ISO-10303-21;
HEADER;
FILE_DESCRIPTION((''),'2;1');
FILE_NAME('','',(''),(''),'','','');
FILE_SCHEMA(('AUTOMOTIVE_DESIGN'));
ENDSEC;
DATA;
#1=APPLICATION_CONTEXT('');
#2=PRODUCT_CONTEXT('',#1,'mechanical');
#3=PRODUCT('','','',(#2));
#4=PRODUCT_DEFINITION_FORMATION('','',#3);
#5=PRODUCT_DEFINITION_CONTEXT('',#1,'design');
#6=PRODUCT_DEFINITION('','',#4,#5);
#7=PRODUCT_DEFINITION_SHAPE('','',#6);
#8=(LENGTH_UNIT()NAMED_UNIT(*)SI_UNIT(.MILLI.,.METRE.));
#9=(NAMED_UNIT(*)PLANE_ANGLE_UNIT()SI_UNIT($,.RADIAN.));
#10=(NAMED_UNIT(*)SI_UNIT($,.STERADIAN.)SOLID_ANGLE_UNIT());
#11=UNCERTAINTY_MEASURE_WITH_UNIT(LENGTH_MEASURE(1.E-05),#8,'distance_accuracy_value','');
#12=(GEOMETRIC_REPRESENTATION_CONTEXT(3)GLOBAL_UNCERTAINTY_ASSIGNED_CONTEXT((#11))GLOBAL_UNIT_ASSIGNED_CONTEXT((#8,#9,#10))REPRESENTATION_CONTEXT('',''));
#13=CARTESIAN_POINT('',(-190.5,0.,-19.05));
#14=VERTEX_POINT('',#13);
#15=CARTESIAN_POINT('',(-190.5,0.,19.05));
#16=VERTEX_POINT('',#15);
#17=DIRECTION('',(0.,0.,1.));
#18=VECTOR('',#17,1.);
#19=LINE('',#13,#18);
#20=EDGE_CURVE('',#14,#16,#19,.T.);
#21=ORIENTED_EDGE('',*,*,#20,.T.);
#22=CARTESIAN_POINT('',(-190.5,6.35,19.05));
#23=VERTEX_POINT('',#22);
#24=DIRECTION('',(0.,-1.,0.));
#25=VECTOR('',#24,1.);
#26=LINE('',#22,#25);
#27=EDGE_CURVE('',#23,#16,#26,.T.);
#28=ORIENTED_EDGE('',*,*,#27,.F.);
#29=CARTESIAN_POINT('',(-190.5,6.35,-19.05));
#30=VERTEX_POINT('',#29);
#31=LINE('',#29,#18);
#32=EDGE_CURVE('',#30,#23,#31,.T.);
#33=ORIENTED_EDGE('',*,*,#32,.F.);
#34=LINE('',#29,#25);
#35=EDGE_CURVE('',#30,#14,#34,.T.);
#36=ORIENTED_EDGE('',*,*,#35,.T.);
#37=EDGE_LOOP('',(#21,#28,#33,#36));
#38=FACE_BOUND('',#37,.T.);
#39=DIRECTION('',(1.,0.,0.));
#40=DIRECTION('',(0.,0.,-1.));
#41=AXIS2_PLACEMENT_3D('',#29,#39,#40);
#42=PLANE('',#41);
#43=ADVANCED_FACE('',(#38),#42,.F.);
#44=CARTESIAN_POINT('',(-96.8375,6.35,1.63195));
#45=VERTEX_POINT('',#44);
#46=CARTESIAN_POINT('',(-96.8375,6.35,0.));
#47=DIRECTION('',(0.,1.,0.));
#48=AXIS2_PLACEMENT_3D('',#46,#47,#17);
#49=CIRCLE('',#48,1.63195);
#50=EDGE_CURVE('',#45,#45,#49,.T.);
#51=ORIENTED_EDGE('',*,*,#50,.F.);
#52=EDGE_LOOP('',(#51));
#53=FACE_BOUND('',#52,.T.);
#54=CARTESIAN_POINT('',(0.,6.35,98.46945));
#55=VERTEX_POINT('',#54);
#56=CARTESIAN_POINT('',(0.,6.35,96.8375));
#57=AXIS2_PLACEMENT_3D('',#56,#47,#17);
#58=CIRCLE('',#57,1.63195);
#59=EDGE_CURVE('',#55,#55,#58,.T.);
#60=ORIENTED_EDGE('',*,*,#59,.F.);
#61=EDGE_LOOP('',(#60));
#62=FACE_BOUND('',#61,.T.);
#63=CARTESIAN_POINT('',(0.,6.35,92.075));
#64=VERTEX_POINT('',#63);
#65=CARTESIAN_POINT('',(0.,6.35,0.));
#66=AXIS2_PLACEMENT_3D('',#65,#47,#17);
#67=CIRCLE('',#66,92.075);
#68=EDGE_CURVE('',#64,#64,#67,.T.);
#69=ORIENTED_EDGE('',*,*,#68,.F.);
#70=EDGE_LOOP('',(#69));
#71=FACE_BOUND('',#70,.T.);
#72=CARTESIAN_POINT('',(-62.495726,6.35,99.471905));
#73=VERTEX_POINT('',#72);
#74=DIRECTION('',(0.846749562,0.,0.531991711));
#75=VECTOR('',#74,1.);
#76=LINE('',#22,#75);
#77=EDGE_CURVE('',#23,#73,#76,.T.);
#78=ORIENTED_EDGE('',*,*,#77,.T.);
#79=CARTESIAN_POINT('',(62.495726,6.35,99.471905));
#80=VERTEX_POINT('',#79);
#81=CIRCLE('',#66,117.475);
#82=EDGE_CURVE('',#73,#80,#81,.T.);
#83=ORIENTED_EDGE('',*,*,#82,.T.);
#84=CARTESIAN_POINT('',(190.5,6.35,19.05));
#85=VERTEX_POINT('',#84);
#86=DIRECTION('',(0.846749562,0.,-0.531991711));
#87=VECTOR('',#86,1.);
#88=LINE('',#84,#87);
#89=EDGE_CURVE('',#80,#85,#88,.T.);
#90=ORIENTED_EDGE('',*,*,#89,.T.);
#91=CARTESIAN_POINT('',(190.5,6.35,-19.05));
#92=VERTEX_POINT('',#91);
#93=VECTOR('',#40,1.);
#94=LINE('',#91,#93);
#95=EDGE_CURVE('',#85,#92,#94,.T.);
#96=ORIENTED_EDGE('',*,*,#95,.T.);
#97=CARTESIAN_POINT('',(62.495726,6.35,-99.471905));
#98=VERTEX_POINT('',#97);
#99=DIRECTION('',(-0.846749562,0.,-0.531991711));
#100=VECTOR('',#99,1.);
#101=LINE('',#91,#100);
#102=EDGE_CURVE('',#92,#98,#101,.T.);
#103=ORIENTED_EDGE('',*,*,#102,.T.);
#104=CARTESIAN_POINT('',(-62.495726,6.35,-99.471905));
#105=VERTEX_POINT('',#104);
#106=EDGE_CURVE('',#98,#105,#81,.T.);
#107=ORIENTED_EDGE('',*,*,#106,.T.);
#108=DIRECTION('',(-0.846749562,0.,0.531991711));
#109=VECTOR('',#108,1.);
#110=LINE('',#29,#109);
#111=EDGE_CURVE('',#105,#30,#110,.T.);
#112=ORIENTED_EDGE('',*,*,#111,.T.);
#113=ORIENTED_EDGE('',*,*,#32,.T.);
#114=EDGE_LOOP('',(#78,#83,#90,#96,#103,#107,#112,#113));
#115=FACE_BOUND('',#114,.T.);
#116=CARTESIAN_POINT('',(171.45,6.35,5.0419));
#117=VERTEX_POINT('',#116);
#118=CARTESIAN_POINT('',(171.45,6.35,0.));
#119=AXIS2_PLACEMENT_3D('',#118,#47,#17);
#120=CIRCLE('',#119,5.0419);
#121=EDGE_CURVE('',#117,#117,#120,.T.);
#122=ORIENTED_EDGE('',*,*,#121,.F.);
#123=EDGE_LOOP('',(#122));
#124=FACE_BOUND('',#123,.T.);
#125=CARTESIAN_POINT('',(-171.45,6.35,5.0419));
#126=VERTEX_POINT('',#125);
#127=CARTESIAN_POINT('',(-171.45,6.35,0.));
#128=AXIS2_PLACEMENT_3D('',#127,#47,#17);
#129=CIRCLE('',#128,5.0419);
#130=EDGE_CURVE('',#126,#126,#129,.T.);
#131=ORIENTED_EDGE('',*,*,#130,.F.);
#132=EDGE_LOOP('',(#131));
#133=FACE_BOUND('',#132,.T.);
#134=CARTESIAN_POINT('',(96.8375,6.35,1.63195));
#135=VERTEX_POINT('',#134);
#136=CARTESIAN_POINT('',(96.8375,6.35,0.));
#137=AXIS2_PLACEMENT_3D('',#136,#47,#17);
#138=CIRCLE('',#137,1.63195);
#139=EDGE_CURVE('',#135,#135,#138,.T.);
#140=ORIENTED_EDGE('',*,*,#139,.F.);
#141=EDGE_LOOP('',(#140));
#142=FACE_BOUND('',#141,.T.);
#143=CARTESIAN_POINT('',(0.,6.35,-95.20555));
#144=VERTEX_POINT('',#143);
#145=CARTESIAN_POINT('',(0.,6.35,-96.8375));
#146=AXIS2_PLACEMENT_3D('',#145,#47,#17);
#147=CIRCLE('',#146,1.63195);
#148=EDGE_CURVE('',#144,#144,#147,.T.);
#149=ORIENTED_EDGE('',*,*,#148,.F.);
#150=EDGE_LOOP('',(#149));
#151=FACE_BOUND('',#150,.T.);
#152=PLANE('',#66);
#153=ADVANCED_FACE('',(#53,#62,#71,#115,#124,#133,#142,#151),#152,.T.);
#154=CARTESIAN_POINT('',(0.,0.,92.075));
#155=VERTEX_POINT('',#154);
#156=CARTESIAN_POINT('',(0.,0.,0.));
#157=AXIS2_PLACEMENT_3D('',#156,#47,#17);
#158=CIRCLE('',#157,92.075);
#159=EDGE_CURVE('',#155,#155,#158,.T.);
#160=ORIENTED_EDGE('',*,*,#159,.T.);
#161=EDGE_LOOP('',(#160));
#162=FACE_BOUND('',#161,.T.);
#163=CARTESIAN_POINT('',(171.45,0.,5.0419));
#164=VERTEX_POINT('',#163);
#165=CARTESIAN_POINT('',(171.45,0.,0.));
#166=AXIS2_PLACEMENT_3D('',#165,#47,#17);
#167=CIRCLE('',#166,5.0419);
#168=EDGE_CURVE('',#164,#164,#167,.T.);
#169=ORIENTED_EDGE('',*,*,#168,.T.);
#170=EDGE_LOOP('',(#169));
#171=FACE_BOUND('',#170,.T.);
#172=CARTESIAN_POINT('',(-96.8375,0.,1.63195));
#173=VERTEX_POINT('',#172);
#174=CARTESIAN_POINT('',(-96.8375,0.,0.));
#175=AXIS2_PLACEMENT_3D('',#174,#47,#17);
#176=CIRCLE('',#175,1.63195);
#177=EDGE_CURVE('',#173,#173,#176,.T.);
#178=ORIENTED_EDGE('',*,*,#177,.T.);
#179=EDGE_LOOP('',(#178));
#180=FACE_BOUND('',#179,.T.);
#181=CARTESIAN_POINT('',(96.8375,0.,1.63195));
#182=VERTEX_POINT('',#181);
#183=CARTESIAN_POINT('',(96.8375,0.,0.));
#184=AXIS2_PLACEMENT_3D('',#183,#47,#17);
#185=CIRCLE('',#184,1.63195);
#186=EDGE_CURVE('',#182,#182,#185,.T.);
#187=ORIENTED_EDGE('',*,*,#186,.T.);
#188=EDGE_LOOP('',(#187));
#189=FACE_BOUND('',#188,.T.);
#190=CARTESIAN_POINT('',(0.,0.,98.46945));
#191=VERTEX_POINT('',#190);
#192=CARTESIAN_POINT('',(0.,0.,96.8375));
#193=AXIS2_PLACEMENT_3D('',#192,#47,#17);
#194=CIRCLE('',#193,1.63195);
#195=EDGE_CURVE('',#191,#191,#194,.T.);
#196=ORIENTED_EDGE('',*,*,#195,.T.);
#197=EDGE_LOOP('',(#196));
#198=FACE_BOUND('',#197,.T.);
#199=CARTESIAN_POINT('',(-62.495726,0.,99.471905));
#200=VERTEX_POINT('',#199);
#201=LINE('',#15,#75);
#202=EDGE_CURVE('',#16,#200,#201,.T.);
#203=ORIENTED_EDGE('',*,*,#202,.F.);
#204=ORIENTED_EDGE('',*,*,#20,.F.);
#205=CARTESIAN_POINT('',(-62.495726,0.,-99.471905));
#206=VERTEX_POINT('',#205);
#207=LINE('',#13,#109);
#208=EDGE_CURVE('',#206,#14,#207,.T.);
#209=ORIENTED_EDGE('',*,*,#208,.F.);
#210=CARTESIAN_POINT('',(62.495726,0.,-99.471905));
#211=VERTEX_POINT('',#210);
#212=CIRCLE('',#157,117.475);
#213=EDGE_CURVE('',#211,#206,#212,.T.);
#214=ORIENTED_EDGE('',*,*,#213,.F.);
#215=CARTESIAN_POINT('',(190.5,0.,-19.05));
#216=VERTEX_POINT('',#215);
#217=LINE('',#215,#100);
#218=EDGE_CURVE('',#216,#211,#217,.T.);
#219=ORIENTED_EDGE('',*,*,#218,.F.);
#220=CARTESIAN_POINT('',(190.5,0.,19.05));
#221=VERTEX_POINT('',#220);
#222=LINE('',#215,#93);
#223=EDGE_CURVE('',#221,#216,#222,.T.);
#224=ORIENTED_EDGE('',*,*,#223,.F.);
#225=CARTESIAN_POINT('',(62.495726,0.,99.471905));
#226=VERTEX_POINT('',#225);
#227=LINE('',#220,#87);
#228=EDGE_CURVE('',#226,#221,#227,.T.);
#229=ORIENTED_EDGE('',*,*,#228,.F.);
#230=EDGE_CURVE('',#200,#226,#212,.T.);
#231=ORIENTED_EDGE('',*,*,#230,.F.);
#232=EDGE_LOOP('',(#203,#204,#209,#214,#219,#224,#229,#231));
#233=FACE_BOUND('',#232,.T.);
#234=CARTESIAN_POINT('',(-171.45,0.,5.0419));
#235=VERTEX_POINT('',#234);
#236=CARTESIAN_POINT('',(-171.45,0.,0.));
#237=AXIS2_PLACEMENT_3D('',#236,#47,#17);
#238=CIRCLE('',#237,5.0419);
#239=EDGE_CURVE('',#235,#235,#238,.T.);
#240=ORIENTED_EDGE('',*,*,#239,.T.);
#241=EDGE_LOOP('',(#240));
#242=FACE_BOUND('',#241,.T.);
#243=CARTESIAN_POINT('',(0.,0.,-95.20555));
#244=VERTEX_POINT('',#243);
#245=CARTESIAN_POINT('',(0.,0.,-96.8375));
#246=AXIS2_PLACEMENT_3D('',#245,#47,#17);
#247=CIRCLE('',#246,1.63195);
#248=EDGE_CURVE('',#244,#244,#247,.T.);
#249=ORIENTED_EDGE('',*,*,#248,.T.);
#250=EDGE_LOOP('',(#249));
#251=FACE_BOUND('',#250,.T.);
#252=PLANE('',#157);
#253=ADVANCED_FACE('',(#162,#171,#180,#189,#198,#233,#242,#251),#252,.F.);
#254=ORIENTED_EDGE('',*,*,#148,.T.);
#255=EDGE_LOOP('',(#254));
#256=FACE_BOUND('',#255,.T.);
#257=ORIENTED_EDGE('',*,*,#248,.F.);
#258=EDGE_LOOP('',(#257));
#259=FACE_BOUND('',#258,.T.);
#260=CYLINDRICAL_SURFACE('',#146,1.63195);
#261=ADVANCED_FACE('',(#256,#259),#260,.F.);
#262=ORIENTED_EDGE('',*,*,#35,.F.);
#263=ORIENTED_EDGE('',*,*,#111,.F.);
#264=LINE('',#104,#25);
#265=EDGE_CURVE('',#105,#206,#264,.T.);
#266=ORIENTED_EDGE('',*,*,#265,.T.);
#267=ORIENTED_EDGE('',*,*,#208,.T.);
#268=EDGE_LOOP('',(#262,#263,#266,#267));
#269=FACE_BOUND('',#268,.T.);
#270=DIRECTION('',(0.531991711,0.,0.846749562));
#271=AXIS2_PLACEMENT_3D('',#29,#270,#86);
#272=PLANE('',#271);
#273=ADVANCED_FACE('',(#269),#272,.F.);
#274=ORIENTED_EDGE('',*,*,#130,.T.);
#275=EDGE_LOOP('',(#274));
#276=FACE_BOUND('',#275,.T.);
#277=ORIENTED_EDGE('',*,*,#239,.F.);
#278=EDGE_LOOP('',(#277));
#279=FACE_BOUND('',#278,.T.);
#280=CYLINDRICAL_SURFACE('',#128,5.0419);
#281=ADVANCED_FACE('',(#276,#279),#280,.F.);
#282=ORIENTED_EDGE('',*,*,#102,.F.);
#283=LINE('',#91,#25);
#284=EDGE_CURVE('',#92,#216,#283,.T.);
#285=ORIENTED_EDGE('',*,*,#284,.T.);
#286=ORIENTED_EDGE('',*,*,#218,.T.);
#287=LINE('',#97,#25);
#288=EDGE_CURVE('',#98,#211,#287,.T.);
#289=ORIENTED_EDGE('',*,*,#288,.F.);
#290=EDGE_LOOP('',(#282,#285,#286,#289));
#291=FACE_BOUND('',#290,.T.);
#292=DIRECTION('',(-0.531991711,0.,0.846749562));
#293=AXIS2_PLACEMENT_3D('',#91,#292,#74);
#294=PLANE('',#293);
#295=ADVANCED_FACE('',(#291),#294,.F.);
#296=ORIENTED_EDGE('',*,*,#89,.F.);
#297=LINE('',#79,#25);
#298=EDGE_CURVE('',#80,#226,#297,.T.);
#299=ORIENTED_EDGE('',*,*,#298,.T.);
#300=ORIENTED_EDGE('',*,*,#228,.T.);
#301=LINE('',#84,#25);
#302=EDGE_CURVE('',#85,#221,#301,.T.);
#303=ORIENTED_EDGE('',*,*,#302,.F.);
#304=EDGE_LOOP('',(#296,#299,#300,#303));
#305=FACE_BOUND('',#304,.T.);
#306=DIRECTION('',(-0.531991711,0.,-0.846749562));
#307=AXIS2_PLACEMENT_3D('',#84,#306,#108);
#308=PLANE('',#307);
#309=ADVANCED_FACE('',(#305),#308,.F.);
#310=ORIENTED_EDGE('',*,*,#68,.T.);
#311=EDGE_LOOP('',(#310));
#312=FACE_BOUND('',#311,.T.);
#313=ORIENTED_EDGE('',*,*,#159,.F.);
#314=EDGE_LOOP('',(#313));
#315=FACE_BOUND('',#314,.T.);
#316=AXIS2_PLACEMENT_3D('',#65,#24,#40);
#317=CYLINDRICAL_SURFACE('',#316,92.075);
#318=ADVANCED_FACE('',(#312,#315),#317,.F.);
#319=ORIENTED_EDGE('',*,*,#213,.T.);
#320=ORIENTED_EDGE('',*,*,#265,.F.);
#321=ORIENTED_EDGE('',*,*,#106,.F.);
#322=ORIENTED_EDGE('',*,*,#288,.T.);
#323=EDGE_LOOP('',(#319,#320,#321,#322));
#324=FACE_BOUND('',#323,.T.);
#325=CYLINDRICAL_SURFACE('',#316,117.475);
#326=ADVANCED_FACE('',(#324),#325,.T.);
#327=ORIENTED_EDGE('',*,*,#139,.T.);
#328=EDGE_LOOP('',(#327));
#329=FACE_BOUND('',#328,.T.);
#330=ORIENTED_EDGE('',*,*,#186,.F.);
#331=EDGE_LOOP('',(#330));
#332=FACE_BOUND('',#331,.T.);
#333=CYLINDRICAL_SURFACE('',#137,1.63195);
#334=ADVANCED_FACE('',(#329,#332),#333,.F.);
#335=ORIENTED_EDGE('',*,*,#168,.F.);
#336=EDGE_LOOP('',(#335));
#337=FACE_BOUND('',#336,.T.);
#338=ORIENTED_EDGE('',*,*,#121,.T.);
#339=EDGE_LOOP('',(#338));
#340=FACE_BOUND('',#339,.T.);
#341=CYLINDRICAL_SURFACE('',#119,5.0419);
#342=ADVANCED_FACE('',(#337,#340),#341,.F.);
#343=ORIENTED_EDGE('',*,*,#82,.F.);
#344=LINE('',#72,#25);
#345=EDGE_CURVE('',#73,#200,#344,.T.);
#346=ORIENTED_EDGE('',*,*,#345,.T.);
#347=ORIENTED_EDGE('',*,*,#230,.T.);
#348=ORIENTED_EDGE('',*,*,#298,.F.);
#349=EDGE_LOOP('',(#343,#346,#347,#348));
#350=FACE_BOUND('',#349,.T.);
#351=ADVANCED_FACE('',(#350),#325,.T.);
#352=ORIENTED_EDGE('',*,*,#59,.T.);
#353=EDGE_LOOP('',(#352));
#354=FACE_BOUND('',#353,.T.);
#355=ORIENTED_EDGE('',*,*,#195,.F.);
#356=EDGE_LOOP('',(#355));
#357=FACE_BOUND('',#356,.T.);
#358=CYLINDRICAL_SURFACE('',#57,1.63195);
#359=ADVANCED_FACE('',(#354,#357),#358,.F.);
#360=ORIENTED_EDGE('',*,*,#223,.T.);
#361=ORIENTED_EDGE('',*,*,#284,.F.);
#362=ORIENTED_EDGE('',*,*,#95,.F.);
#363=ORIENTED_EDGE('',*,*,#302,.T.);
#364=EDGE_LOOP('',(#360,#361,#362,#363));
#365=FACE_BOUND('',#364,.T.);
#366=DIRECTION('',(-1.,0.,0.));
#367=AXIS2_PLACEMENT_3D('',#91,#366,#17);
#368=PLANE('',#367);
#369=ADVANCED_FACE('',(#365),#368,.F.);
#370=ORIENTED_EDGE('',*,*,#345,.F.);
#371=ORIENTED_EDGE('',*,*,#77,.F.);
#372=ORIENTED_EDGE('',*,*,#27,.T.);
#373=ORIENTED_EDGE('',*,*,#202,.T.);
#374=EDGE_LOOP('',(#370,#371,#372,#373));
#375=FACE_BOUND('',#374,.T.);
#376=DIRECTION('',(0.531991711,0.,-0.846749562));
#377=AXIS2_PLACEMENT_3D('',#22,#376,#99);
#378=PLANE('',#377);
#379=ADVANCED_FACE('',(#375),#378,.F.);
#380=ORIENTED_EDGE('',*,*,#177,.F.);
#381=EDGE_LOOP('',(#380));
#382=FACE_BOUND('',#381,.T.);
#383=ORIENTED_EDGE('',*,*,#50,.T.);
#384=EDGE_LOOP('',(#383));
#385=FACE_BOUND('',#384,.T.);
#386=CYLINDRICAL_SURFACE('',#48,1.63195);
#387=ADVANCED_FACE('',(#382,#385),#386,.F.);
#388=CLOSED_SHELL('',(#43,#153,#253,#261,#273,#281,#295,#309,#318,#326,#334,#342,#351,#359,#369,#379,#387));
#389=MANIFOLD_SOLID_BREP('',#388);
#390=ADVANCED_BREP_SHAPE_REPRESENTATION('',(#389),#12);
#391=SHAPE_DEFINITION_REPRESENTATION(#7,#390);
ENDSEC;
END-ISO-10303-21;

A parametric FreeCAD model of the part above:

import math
import FreeCAD as App
import Part
import Sketcher
Q = App.Units.Quantity

doc = App.newDocument("Part")
body = doc.addObject("PartDesign::Body", "Body")

sketch1 = body.newObject("Sketcher::SketchObject", "Sketch")
sketch1.AttachmentSupport = (doc.getObject("XZ_Plane"), [""])
sketch1.MapMode = "FlatFace"
sketch1.addGeometry(Part.LineSegment(App.Vector(-190.5, -19.05, 0), App.Vector(-190.5, 19.05, 0)), False)
sketch1.addGeometry(Part.LineSegment(App.Vector(-190.5, 19.05, 0), App.Vector(-62.495726, 99.471905, 0)), False)
sketch1.addGeometry(Part.ArcOfCircle(Part.Circle(App.Vector(0, 0, 0), App.Vector(0, 0, 1), 117.475), math.radians(57.859874), math.radians(122.140126)), False)
sketch1.addGeometry(Part.LineSegment(App.Vector(62.495726, 99.471905, 0), App.Vector(190.5, 19.05, 0)), False)
sketch1.addGeometry(Part.LineSegment(App.Vector(190.5, 19.05, 0), App.Vector(190.5, -19.05, 0)), False)
sketch1.addGeometry(Part.LineSegment(App.Vector(190.5, -19.05, 0), App.Vector(62.495726, -99.471905, 0)), False)
sketch1.addGeometry(Part.ArcOfCircle(Part.Circle(App.Vector(0, 0, 0), App.Vector(0, 0, 1), 117.475), math.radians(-122.140126), math.radians(-57.859874)), False)
sketch1.addGeometry(Part.LineSegment(App.Vector(-62.495726, -99.471905, 0), App.Vector(-190.5, -19.05, 0)), False)
sketch1.addGeometry(Part.Circle(App.Vector(0, 0, 0), App.Vector(0, 0, 1), 92.075), False)
sketch1.addConstraint(Sketcher.Constraint("Coincident", 0, 2, 1, 1))
sketch1.addConstraint(Sketcher.Constraint("Tangent", 1, 2, 2, 2))
sketch1.addConstraint(Sketcher.Constraint("Tangent", 2, 1, 3, 1))
sketch1.addConstraint(Sketcher.Constraint("Coincident", 3, 2, 4, 1))
sketch1.addConstraint(Sketcher.Constraint("Coincident", 4, 2, 5, 1))
sketch1.addConstraint(Sketcher.Constraint("Tangent", 5, 2, 6, 2))
sketch1.addConstraint(Sketcher.Constraint("Tangent", 6, 1, 7, 1))
sketch1.addConstraint(Sketcher.Constraint("Coincident", 7, 2, 0, 1))
sketch1.addConstraint(Sketcher.Constraint("Vertical", 0))
sketch1.addConstraint(Sketcher.Constraint("Vertical", 4))
sketch1.addConstraint(Sketcher.Constraint("Coincident", 2, 3, -1, 1))
sketch1.addConstraint(Sketcher.Constraint("Coincident", 6, 3, -1, 1))
sketch1.addConstraint(Sketcher.Constraint("Coincident", 8, 3, -1, 1))
sketch1.addConstraint(Sketcher.Constraint("Equal", 2, 6))
sketch1.addConstraint(Sketcher.Constraint("Symmetric", 0, 2, 4, 2, -1, 1))
sketch1.addConstraint(Sketcher.Constraint("Parallel", 3, 7))
sketch1.addConstraint(Sketcher.Constraint("Horizontal", 1, 2, 2, 1))
sketch1.addConstraint(Sketcher.Constraint("Diameter", 8, Q("7.25 in")))
sketch1.addConstraint(Sketcher.Constraint("DistanceY", 0, 1, 0, 2, Q("1.5 in")))
sketch1.addConstraint(Sketcher.Constraint("Radius", 2, Q("4.625 in")))
sketch1.addConstraint(Sketcher.Constraint("DistanceX", 0, 2, -1, 1, Q("7.5 in")))
pad1 = body.newObject("PartDesign::Pad", "Pad")
pad1.Profile = sketch1
pad1.Length = Q("0.25 in")
pad1.Reversed = True

sketch2 = body.newObject("Sketcher::SketchObject", "Sketch001")
sketch2.AttachmentSupport = (doc.getObject("XZ_Plane"), [""])
sketch2.MapMode = "FlatFace"
sketch2.AttachmentOffset = App.Placement(App.Vector(0, 0, -0.25 * 25.4), App.Rotation())
sketch2.addGeometry(Part.Circle(App.Vector(0, -96.8375, 0), App.Vector(0, 0, 1), 1.63195), False)
sketch2.addGeometry(Part.Circle(App.Vector(96.8375, 0, 0), App.Vector(0, 0, 1), 1.63195), False)
sketch2.addGeometry(Part.Circle(App.Vector(0, 96.8375, 0), App.Vector(0, 0, 1), 1.63195), False)
sketch2.addGeometry(Part.Circle(App.Vector(-96.8375, 0, 0), App.Vector(0, 0, 1), 1.63195), False)
sketch2.addConstraint(Sketcher.Constraint("Equal", 0, 1))
sketch2.addConstraint(Sketcher.Constraint("Equal", 1, 2))
sketch2.addConstraint(Sketcher.Constraint("Equal", 2, 3))
sketch2.addConstraint(Sketcher.Constraint("Symmetric", 0, 3, 2, 3, -1, 1))
sketch2.addConstraint(Sketcher.Constraint("Symmetric", 1, 3, 3, 3, -1, 1))
sketch2.addConstraint(Sketcher.Constraint("PointOnObject", 0, 3, -2))
sketch2.addConstraint(Sketcher.Constraint("PointOnObject", 1, 3, -1))
sketch2.addConstraint(Sketcher.Constraint("Diameter", 0, Q("0.1285 in")))
sketch2.addConstraint(Sketcher.Constraint("DistanceY", 0, 3, -1, 1, Q("3.8125 in")))
sketch2.addConstraint(Sketcher.Constraint("DistanceX", -1, 1, 1, 3, Q("3.8125 in")))
doc.recompute()
hole = body.newObject("PartDesign::Hole", "Hole")
hole.Profile = sketch2
hole.ThreadType = "None"
hole.Diameter = Q("0.1285 in")
hole.DepthType = "ThroughAll"
hole.Reversed = True

sketch3 = body.newObject("Sketcher::SketchObject", "Sketch002")
sketch3.AttachmentSupport = (doc.getObject("XZ_Plane"), [""])
sketch3.MapMode = "FlatFace"
sketch3.AttachmentOffset = App.Placement(App.Vector(0, 0, -0.25 * 25.4), App.Rotation())
sketch3.addGeometry(Part.Circle(App.Vector(-171.45, 0, 0), App.Vector(0, 0, 1), 5.0419), False)
sketch3.addGeometry(Part.Circle(App.Vector(171.45, 0, 0), App.Vector(0, 0, 1), 5.0419), False)
sketch3.addConstraint(Sketcher.Constraint("Equal", 0, 1))
sketch3.addConstraint(Sketcher.Constraint("Symmetric", 0, 3, 1, 3, -1, 1))
sketch3.addConstraint(Sketcher.Constraint("PointOnObject", 0, 3, -1))
sketch3.addConstraint(Sketcher.Constraint("Diameter", 0, Q("0.397 in")))
sketch3.addConstraint(Sketcher.Constraint("DistanceX", 0, 3, 1, 3, Q("13.5 in")))
doc.recompute()
hole2 = body.newObject("PartDesign::Hole", "Hole001")
hole2.Profile = sketch3
hole2.ThreadType = "None"
hole2.Diameter = Q("0.397 in")
hole2.DepthType = "ThroughAll"
hole2.Reversed = True

doc.recompute()
